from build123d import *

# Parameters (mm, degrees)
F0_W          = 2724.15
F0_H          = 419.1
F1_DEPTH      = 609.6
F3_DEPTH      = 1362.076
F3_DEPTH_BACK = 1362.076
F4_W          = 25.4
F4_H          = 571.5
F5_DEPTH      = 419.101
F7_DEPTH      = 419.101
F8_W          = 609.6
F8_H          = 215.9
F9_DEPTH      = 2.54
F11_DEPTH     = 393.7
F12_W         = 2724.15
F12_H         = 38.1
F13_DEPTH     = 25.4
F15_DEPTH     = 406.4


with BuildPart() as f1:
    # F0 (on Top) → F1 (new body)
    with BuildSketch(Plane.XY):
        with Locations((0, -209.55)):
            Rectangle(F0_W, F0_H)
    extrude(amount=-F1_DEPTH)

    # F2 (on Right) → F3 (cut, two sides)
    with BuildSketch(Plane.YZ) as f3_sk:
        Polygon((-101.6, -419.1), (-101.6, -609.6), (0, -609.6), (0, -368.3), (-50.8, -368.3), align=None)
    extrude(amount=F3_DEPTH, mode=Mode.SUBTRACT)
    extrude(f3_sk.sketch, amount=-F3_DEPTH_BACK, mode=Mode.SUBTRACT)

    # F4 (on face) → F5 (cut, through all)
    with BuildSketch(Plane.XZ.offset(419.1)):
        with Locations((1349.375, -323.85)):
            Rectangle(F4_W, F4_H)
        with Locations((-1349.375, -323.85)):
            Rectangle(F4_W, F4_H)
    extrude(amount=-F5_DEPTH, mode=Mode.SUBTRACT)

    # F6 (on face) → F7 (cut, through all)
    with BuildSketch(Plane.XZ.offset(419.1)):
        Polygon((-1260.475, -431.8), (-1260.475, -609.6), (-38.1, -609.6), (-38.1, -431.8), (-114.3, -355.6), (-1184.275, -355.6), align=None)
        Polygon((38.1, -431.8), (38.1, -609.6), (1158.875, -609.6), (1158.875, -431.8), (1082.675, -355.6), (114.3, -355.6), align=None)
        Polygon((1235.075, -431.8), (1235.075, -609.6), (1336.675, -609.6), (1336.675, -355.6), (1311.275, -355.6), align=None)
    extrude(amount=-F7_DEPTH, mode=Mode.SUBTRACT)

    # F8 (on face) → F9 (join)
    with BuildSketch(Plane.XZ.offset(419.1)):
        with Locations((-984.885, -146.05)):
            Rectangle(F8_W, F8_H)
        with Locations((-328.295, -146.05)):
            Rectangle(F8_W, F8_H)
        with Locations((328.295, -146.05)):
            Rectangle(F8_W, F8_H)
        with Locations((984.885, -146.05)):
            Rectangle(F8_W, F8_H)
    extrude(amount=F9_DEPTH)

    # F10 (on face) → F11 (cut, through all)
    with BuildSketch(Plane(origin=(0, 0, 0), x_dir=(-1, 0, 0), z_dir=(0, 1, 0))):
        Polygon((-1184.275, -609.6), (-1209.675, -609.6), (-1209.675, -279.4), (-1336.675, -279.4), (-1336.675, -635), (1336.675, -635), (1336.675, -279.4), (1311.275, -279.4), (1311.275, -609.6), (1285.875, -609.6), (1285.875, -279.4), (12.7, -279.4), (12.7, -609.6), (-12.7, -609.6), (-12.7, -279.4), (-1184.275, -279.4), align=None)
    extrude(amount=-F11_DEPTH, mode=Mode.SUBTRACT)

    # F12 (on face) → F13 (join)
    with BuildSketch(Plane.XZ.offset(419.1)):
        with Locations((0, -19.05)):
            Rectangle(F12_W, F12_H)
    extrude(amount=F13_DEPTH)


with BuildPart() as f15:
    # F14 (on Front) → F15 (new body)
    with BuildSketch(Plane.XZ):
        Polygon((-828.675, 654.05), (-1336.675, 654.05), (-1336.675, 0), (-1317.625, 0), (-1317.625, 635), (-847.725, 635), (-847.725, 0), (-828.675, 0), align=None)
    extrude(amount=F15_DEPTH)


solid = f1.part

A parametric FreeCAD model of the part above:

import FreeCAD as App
import Part
import Sketcher
Q = App.Units.Quantity


def add_polygon(sketch, points):
    """Adds a closed chain of lines whose ends are joined by coincident constraints."""
    first, n = sketch.GeometryCount, len(points)
    for a, b in zip(points, points[1:] + points[:1]):
        sketch.addGeometry(Part.LineSegment(App.Vector(*a, 0), App.Vector(*b, 0)), False)
    for i in range(n):
        sketch.addConstraint(Sketcher.Constraint("Coincident", first + i, 2, first + (i + 1) % n, 1))

doc = App.newDocument("Part")
body = doc.addObject("PartDesign::Body", "Body")

# Sketch on XY plane
sketch1 = body.newObject("Sketcher::SketchObject", "Sketch")
sketch1.AttachmentSupport = (doc.getObject("XY_Plane"), [""])
sketch1.MapMode = "FlatFace"
add_polygon(sketch1, [(-1362, 0), (-1362, -419), (1362, -419), (1362, 0)])  # lines 0-3
sketch1.addConstraint([
    Sketcher.Constraint("Vertical", 0),
    Sketcher.Constraint("Horizontal", 1),
    Sketcher.Constraint("Vertical", 2),
    Sketcher.Constraint("Horizontal", 3),
    Sketcher.Constraint("Symmetric", 2, 2, 3, 2, -1, 1),
    Sketcher.Constraint("DistanceY", 0, 2, 0, 1, Q("16.5 in")),
    Sketcher.Constraint("DistanceX", 1, 1, 1, 2, Q("107.25 in")),
])
pad1 = body.newObject("PartDesign::Pad", "Pad")
pad1.Profile = sketch1
pad1.Length = Q("24 in")
pad1.Reversed = True

# Sketch on YZ plane
sketch2 = body.newObject("Sketcher::SketchObject", "Sketch001")
sketch2.AttachmentSupport = (doc.getObject("YZ_Plane"), [""])
sketch2.MapMode = "FlatFace"
add_polygon(sketch2, [(-102, -419), (-102, -610), (0, -610), (0, -368), (-51, -368)])  # lines 0-4
sketch2.addConstraint([
    Sketcher.Constraint("Vertical", 0),
    Sketcher.Constraint("Horizontal", 1),
    Sketcher.Constraint("Vertical", 2),
    Sketcher.Constraint("Horizontal", 3),
    Sketcher.Constraint("PointOnObject", 1, 2, -2),
    Sketcher.Constraint("DistanceX", 1, 1, 1, 2, Q("4 in")),
    Sketcher.Constraint("DistanceX", 3, 2, 3, 1, Q("2 in")),
    Sketcher.Constraint("DistanceY", 0, 2, 0, 1, Q("7.5 in")),
    Sketcher.Constraint("DistanceY", 2, 1, 2, 2, Q("9.5 in")),
    Sketcher.Constraint("DistanceY", 0, 2, -1, 1, Q("24 in")),
])
pocket1 = body.newObject("PartDesign::Pocket", "Pocket")
pocket1.Profile = sketch2
pocket1.Type = "ThroughAll"
pocket1.Midplane = True

# Sketch on XZ plane
sketch3 = body.newObject("Sketcher::SketchObject", "Sketch002")
sketch3.AttachmentSupport = (doc.getObject("XZ_Plane"), [""])
sketch3.MapMode = "FlatFace"
sketch3.AttachmentOffset = App.Placement(App.Vector(0, 0, 16.5 * 25.4), App.Rotation())
add_polygon(sketch3, [(1337, -38), (1337, -610), (1362, -610), (1362, -38)])  # lines 0-3
add_polygon(sketch3, [(-1362, -38), (-1362, -610), (-1337, -610), (-1337, -38)])  # lines 4-7
sketch3.addConstraint([
    Sketcher.Constraint("Vertical", 0),
    Sketcher.Constraint("Horizontal", 1),
    Sketcher.Constraint("Vertical", 2),
    Sketcher.Constraint("Horizontal", 3),
    Sketcher.Constraint("Vertical", 4),
    Sketcher.Constraint("Horizontal", 5),
    Sketcher.Constraint("Vertical", 6),
    Sketcher.Constraint("Horizontal", 7),
    Sketcher.Constraint("Symmetric", 1, 2, 4, 2, -2),
    Sketcher.Constraint("Symmetric", 3, 2, 6, 2, -2),
    Sketcher.Constraint("DistanceX", 1, 1, 1, 2, Q("1 in")),
    Sketcher.Constraint("DistanceY", 0, 2, 0, 1, Q("22.5 in")),
    Sketcher.Constraint("DistanceY", 0, 2, -1, 1, Q("24 in")),
    Sketcher.Constraint("DistanceX", 4, 2, 0, 2, Q("106.25 in")),
])
pocket2 = body.newObject("PartDesign::Pocket", "Pocket001")
pocket2.Profile = sketch3
pocket2.Type = "ThroughAll"

# Sketch on XZ plane
sketch4 = body.newObject("Sketcher::SketchObject", "Sketch003")
sketch4.AttachmentSupport = (doc.getObject("XZ_Plane"), [""])
sketch4.MapMode = "FlatFace"
sketch4.AttachmentOffset = App.Placement(App.Vector(0, 0, 16.5 * 25.4), App.Rotation())
add_polygon(sketch4, [(-1260, -432), (-1260, -610), (-38, -610), (-38, -432), (-114, -356), (-1184, -356)])  # lines 0-5
add_polygon(sketch4, [(38, -432), (38, -610), (1159, -610), (1159, -432), (1083, -356), (114, -356)])  # lines 6-11
add_polygon(sketch4, [(1235, -432), (1235, -610), (1337, -610), (1337, -356), (1311, -356)])  # lines 12-16
sketch4.addConstraint([
    Sketcher.Constraint("Vertical", 0),
    Sketcher.Constraint("Horizontal", 1),
    Sketcher.Constraint("Vertical", 2),
    Sketcher.Constraint("Horizontal", 4),
    Sketcher.Constraint("Vertical", 6),
    Sketcher.Constraint("Horizontal", 7),
    Sketcher.Constraint("Vertical", 8),
    Sketcher.Constraint("Horizontal", 10),
    Sketcher.Constraint("Vertical", 12),
    Sketcher.Constraint("Horizontal", 13),
    Sketcher.Constraint("Vertical", 14),
    Sketcher.Constraint("Horizontal", 15),
    Sketcher.Constraint("Symmetric", 1, 2, 6, 2, -2),
    Sketcher.Constraint("Symmetric", 3, 2, 10, 2, -2),
    Sketcher.Constraint("Perpendicular", 3, 5),
    Sketcher.Constraint("Perpendicular", 5, 9),
    Sketcher.Constraint("Perpendicular", 9, 11),
    Sketcher.Constraint("Parallel", 11, 16),
    Sketcher.Constraint("Horizontal", 2, 2, 5, 2),
    Sketcher.Constraint("Horizontal", 5, 2, 8, 2),
    Sketcher.Constraint("Horizontal", 8, 2, 11, 2),
    Sketcher.Constraint("Horizontal", 7, 2, 12, 2),
    Sketcher.Constraint("Horizontal", 10, 2, 14, 2),
    Sketcher.Constraint("Horizontal", 11, 2, 16, 2),
    Sketcher.Constraint("DistanceX", 13, 1, 13, 2, Q("4 in")),
    Sketcher.Constraint("DistanceX", 15, 2, 15, 1, Q("1 in")),
    Sketcher.Constraint("DistanceY", 0, 2, 0, 1, Q("7 in")),
    Sketcher.Constraint("DistanceY", 0, 2, -1, 1, Q("24 in")),
    Sketcher.Constraint("DistanceX", 1, 2, 6, 2, Q("3 in")),
    Sketcher.Constraint("DistanceX", 7, 2, 12, 2, Q("3 in")),
    Sketcher.Constraint("DistanceX", 1, 1, 1, 2, Q("48.125 in")),
    Sketcher.Constraint("DistanceX", 7, 1, 7, 2, Q("44.125 in")),
])
pocket3 = body.newObject("PartDesign::Pocket", "Pocket002")
pocket3.Profile = sketch4
pocket3.Type = "ThroughAll"

# Sketch on XZ plane
sketch5 = body.newObject("Sketcher::SketchObject", "Sketch004")
sketch5.AttachmentSupport = (doc.getObject("XZ_Plane"), [""])
sketch5.MapMode = "FlatFace"
sketch5.AttachmentOffset = App.Placement(App.Vector(0, 0, 16.5 * 25.4), App.Rotation())
add_polygon(sketch5, [(-1290, -38), (-1290, -254), (-680, -254), (-680, -38)])  # lines 0-3
add_polygon(sketch5, [(-633, -38), (-633, -254), (-23, -254), (-23, -38)])  # lines 4-7
add_polygon(sketch5, [(23, -38), (23, -254), (633, -254), (633, -38)])  # lines 8-11
add_polygon(sketch5, [(680, -38), (680, -254), (1290, -254), (1290, -38)])  # lines 12-15
sketch5.addConstraint([
    Sketcher.Constraint("Vertical", 0),
    Sketcher.Constraint("Horizontal", 1),
    Sketcher.Constraint("Vertical", 2),
    Sketcher.Constraint("Horizontal", 3),
    Sketcher.Constraint("Vertical", 4),
    Sketcher.Constraint("Horizontal", 5),
    Sketcher.Constraint("Vertical", 6),
    Sketcher.Constraint("Horizontal", 7),
    Sketcher.Constraint("Vertical", 8),
    Sketcher.Constraint("Horizontal", 9),
    Sketcher.Constraint("Vertical", 10),
    Sketcher.Constraint("Horizontal", 11),
    Sketcher.Constraint("Vertical", 12),
    Sketcher.Constraint("Horizontal", 13),
    Sketcher.Constraint("Vertical", 14),
    Sketcher.Constraint("Horizontal", 15),
    Sketcher.Constraint("Symmetric", 5, 2, 8, 2, -2),
    Sketcher.Constraint("Symmetric", 7, 2, 10, 2, -2),
    Sketcher.Constraint("Symmetric", 1, 2, 12, 2, -2),
    Sketcher.Constraint("Symmetric", 3, 2, 14, 2, -2),
    Sketcher.Constraint("Horizontal", 1, 2, 4, 2),
    Sketcher.Constraint("Horizontal", 3, 2, 6, 2),
    Sketcher.Constraint("Equal", 3, 5),
    Sketcher.Constraint("DistanceX", 1, 1, 1, 2, Q("24 in")),
    Sketcher.Constraint("DistanceY", 0, 2, 0, 1, Q("8.5 in")),
    Sketcher.Constraint("DistanceY", 0, 2, -1, 1, Q("10 in")),
    Sketcher.Constraint("DistanceX", 1, 2, 8, 2, Q("27.7 in")),
    Sketcher.Constraint("DistanceX", 1, 2, 4, 2, Q("1.85 in")),
])
pad2 = body.newObject("PartDesign::Pad", "Pad001")
pad2.Profile = sketch5
pad2.Length = Q("0.1 in")

# Sketch on XZ plane
sketch6 = body.newObject("Sketcher::SketchObject", "Sketch005")
sketch6.AttachmentSupport = (doc.getObject("XZ_Plane"), [""])
sketch6.MapMode = "FlatFace"
add_polygon(sketch6, [(1184, -610), (1210, -610), (1210, -279), (1337, -279), (1337, -635), (-1337, -635), (-1337, -279), (-1311, -279), (-1311, -610), (-1286, -610), (-1286, -279), (-13, -279), (-13, -610), (13, -610), (13, -279), (1184, -279)])  # lines 0-15
sketch6.addConstraint([
    Sketcher.Constraint("Horizontal", 0),
    Sketcher.Constraint("Vertical", 1),
    Sketcher.Constraint("Horizontal", 2),
    Sketcher.Constraint("Vertical", 3),
    Sketcher.Constraint("Horizontal", 4),
    Sketcher.Constraint("Vertical", 5),
    Sketcher.Constraint("Horizontal", 6),
    Sketcher.Constraint("Vertical", 7),
    Sketcher.Constraint("Horizontal", 8),
    Sketcher.Constraint("Vertical", 9),
    Sketcher.Constraint("Horizontal", 10),
    Sketcher.Constraint("Vertical", 11),
    Sketcher.Constraint("Horizontal", 12),
    Sketcher.Constraint("Vertical", 13),
    Sketcher.Constraint("Horizontal", 14),
    Sketcher.Constraint("Vertical", 15),
    Sketcher.Constraint("Symmetric", 2, 2, 5, 2, -2),
    Sketcher.Constraint("Symmetric", 10, 2, 13, 2, -2),
    Sketcher.Constraint("Horizontal", 0, 2, 7, 2),
    Sketcher.Constraint("Horizontal", 6, 2, 9, 2),
    Sketcher.Constraint("Horizontal", 8, 2, 11, 2),
    Sketcher.Constraint("Equal", 0, 6),
    Sketcher.Constraint("Equal", 6, 8),
    Sketcher.Constraint("Equal", 8, 12),
    Sketcher.Constraint("DistanceX", 0, 1, 0, 2, Q("1 in")),
    Sketcher.Constraint("DistanceX", 2, 1, 2, 2, Q("5 in")),
    Sketcher.Constraint("DistanceY", 1, 1, 1, 2, Q("13 in")),
    Sketcher.Constraint("DistanceY", 3, 2, 3, 1, Q("14 in")),
    Sketcher.Constraint("DistanceY", 0, 2, -1, 1, Q("24 in")),
    Sketcher.Constraint("DistanceX", 4, 2, 4, 1, Q("105.25 in")),
])
pocket4 = body.newObject("PartDesign::Pocket", "Pocket003")
pocket4.Profile = sketch6
pocket4.Length = Q("15.5 in")
pocket4.Reversed = True

# Sketch on XZ plane
sketch7 = body.newObject("Sketcher::SketchObject", "Sketch006")
sketch7.AttachmentSupport = (doc.getObject("XZ_Plane"), [""])
sketch7.MapMode = "FlatFace"
sketch7.AttachmentOffset = App.Placement(App.Vector(0, 0, 16.5 * 25.4), App.Rotation())
add_polygon(sketch7, [(-1362, 0), (-1362, -38), (1362, -38), (1362, 0)])  # lines 0-3
sketch7.addConstraint([
    Sketcher.Constraint("Vertical", 0),
    Sketcher.Constraint("Horizontal", 1),
    Sketcher.Constraint("Vertical", 2),
    Sketcher.Constraint("Horizontal", 3),
    Sketcher.Constraint("Symmetric", 2, 2, 3, 2, -1, 1),
    Sketcher.Constraint("DistanceY", 0, 2, 0, 1, Q("1.5 in")),
    Sketcher.Constraint("DistanceX", 1, 1, 1, 2, Q("107.25 in")),
])
pad3 = body.newObject("PartDesign::Pad", "Pad002")
pad3.Profile = sketch7
pad3.Length = Q("1 in")
body2 = doc.addObject("PartDesign::Body", "Body001")

# Sketch on XZ plane
sketch8 = body2.newObject("Sketcher::SketchObject", "Sketch007")
sketch8.AttachmentSupport = (doc.getObject("XZ_Plane001"), [""])
sketch8.MapMode = "FlatFace"
add_polygon(sketch8, [(-829, 654), (-1337, 654), (-1337, 0), (-1318, 0), (-1318, 635), (-848, 635), (-848, 0), (-829, 0)])  # lines 0-7
sketch8.addConstraint([
    Sketcher.Constraint("Horizontal", 0),
    Sketcher.Constraint("Vertical", 1),
    Sketcher.Constraint("Horizontal", 2),
    Sketcher.Constraint("Vertical", 3),
    Sketcher.Constraint("Horizontal", 4),
    Sketcher.Constraint("Vertical", 5),
    Sketcher.Constraint("Horizontal", 6),
    Sketcher.Constraint("Vertical", 7),
    Sketcher.Constraint("PointOnObject", 1, 2, -1),
    Sketcher.Constraint("PointOnObject", 5, 2, -1),
    Sketcher.Constraint("Equal", 2, 6),
    Sketcher.Constraint("DistanceX", 0, 2, 0, 1, Q("20 in")),
    Sketcher.Constraint("DistanceY", 3, 1, 3, 2, Q("25 in")),
    Sketcher.Constraint("DistanceX", 4, 1, 4, 2, Q("18.5 in")),
    Sketcher.Constraint("DistanceY", 1, 2, 1, 1, Q("25.75 in")),
    Sketcher.Constraint("DistanceX", 0, 2, -1, 1, Q("52.625 in")),
])
pad4 = body2.newObject("PartDesign::Pad", "Pad003")
pad4.Profile = sketch8
pad4.Length = Q("16 in")
body2.Visibility = False

doc.recompute()
